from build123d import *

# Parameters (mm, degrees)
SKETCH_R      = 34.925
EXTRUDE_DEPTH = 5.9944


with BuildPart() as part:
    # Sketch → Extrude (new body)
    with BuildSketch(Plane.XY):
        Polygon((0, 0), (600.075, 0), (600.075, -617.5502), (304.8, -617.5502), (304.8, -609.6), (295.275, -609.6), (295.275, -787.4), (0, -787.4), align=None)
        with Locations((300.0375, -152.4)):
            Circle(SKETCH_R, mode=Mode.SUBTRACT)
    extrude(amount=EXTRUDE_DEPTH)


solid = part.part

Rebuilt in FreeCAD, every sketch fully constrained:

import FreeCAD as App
import Part
import Sketcher

V = App.Vector
Q = App.Units.Quantity


def add_polygon(sketch, points):
    """Adds a closed chain of lines whose ends are joined by coincident constraints."""
    first, n = sketch.GeometryCount, len(points)
    for a, b in zip(points, points[1:] + points[:1]):
        sketch.addGeometry(Part.LineSegment(App.Vector(*a, 0), App.Vector(*b, 0)), False)
    for i in range(n):
        sketch.addConstraint(Sketcher.Constraint("Coincident", first + i, 2, first + (i + 1) % n, 1))

doc = App.newDocument("Part")
body = doc.addObject("PartDesign::Body", "Body")

# Sketch on XY plane
sketch1 = body.newObject("Sketcher::SketchObject", "Sketch")
sketch1.AttachmentSupport = (doc.getObject("XY_Plane"), [""])
sketch1.MapMode = "FlatFace"
add_polygon(sketch1, [(600, 0), (0, 0), (0, -787), (295, -787), (295, -610), (305, -610), (305, -618), (600, -618)])  # lines 0-7
sketch1.addGeometry(Part.Circle(V(300, -152, 0), V(0, 0, 1), 35), False)  # 8
sketch1.addConstraint([
    Sketcher.Constraint("Horizontal", 0),
    Sketcher.Constraint("Vertical", 1),
    Sketcher.Constraint("Horizontal", 2),
    Sketcher.Constraint("Vertical", 3),
    Sketcher.Constraint("Horizontal", 4),
    Sketcher.Constraint("Vertical", 5),
    Sketcher.Constraint("Horizontal", 6),
    Sketcher.Constraint("Vertical", 7),
    Sketcher.Constraint("Coincident", 0, 2, -1, 1),
    Sketcher.Constraint("Equal", 2, 6),
    Sketcher.Constraint("Diameter", 8, Q("2.75 in")),
    Sketcher.Constraint("DistanceY", 1, 2, 1, 1, Q("31 in")),
    Sketcher.Constraint("DistanceY", 3, 1, 3, 2, Q("7 in")),
    Sketcher.Constraint("DistanceY", 8, 3, -1, 1, Q("6 in")),
    Sketcher.Constraint("DistanceX", -1, 1, 4, 2, Q("12 in")),
    Sketcher.Constraint("DistanceX", 0, 2, 0, 1, Q("23.625 in")),
    Sketcher.Constraint("DistanceY", 5, 2, 5, 1, Q("0.313 in")),
    Sketcher.Constraint("DistanceX", -1, 1, 8, 3, Q("11.8125 in")),
])
pad1 = body.newObject("PartDesign::Pad", "Pad")
pad1.Profile = sketch1
pad1.Length = Q("0.236 in")

doc.recompute()
